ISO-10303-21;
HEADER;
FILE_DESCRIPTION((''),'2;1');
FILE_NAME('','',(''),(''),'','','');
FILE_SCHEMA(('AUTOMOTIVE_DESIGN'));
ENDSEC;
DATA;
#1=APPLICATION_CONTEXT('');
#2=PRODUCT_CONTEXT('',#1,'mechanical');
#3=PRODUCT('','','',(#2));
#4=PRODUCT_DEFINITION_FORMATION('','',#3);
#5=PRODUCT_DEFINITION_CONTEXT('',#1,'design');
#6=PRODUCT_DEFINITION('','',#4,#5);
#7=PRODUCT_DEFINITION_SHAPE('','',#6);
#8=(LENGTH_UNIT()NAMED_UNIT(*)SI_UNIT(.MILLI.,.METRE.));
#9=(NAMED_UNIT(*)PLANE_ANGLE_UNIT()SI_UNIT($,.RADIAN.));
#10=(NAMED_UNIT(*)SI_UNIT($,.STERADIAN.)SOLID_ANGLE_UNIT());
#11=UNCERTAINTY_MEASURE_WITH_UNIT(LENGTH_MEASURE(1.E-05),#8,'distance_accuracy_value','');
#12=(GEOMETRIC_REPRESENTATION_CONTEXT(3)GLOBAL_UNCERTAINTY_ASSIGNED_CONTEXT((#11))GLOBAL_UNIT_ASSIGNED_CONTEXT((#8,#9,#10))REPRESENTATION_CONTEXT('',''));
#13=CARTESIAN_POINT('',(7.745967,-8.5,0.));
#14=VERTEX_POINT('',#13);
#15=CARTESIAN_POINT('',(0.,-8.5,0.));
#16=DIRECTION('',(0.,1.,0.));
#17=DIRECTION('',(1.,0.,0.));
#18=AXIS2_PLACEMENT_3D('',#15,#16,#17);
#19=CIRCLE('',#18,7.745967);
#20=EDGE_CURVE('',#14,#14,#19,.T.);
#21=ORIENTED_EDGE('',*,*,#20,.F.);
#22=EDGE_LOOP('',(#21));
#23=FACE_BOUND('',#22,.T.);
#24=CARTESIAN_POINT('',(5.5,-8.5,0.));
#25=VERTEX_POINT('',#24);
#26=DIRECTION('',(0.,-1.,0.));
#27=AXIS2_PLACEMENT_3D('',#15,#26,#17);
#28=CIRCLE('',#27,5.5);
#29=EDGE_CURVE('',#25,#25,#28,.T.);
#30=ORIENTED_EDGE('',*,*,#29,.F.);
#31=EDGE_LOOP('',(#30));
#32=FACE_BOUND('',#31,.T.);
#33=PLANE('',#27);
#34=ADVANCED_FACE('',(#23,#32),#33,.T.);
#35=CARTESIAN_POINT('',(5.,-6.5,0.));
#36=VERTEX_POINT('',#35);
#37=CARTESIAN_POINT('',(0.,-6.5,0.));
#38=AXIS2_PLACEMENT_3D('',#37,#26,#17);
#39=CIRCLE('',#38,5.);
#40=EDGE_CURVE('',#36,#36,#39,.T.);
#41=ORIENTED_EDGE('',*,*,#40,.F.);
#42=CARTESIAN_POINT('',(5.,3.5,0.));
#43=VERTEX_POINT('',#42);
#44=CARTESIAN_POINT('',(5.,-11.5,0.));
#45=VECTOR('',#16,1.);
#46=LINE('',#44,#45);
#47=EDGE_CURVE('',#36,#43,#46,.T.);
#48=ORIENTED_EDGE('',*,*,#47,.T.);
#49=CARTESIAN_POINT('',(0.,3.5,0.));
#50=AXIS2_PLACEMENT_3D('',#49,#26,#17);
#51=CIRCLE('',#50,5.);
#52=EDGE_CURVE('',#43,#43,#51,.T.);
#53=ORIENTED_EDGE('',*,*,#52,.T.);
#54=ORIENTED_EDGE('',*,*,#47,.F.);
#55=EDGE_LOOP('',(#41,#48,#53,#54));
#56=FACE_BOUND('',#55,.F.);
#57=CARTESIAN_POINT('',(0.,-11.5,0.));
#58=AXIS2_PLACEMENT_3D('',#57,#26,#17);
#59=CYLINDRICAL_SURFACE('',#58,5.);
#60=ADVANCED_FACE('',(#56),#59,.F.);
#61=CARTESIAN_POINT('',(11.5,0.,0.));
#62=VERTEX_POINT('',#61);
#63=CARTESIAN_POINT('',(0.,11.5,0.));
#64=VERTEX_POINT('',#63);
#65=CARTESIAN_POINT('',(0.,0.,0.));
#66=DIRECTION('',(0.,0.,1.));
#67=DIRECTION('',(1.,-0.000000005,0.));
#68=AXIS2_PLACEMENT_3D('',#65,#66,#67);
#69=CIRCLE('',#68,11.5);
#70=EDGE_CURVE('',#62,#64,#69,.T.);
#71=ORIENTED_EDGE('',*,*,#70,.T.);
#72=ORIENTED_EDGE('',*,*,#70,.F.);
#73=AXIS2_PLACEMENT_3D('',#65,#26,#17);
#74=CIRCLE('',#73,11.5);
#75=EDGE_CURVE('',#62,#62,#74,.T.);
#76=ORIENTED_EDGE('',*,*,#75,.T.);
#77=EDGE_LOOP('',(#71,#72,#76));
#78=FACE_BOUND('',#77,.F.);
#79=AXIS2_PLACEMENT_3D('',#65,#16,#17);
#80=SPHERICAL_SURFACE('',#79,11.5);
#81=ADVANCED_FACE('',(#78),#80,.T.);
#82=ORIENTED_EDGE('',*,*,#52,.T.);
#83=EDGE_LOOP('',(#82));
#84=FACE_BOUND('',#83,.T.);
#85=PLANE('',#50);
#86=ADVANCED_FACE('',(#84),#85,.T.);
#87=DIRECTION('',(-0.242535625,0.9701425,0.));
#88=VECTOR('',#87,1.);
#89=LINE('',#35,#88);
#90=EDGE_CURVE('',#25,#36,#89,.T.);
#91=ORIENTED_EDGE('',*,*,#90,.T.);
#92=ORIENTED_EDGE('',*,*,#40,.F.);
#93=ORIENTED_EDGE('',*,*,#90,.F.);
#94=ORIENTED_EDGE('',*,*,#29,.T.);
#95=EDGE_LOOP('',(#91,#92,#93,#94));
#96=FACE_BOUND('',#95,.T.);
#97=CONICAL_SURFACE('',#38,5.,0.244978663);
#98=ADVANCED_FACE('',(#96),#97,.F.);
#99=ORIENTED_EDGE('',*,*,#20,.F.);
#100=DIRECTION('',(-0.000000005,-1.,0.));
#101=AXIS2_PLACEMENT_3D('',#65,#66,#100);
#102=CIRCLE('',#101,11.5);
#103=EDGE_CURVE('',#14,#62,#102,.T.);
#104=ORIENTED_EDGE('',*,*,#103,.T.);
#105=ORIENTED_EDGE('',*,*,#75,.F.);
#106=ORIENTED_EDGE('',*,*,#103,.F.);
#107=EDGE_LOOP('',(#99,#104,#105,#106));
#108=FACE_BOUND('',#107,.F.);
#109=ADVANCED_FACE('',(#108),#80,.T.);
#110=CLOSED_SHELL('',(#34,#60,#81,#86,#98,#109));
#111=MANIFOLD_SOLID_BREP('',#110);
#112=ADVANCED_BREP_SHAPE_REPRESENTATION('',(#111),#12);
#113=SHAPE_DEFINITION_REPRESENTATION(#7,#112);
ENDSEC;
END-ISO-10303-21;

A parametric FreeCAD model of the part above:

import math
import FreeCAD as App
import Part
import Sketcher


def edges_at(feature, points):
    """Names of the edges that pass closest to the given points."""
    edges = feature.Shape.Edges
    near = lambda p: min(range(len(edges)), key=lambda i: edges[i].distToShape(Part.Vertex(*p))[0])
    return sorted({f"Edge{near(p) + 1}" for p in points})

doc = App.newDocument("Part")
body = doc.addObject("PartDesign::Body", "Body")

# Sketch on XY plane
sketch1 = body.newObject("Sketcher::SketchObject", "Sketch")
sketch1.AttachmentSupport = (doc.getObject("XY_Plane"), [""])
sketch1.MapMode = "FlatFace"
sketch1.addGeometry([
    Part.ArcOfCircle(Part.Circle(App.Vector(0, 0, 0), App.Vector(0, 0, 1), 11), math.radians(-90), math.radians(0)),
    Part.ArcOfCircle(Part.Circle(App.Vector(0, 0, 0), App.Vector(0, 0, 1), 11), math.radians(0), math.radians(90)),
    Part.LineSegment(App.Vector(0, 12, 0), App.Vector(0, -12, 0)),
], False)
sketch1.addConstraint([
    Sketcher.Constraint("Tangent", 0, 2, 1, 1),
    Sketcher.Constraint("Coincident", 1, 2, 2, 1),
    Sketcher.Constraint("Coincident", 2, 2, 0, 1),
    Sketcher.Constraint("Vertical", 2),
    Sketcher.Constraint("Coincident", 0, 3, -1, 1),
    Sketcher.Constraint("Equal", 0, 1),
    Sketcher.Constraint("PointOnObject", 0, 2, -1),
    Sketcher.Constraint("PointOnObject", 1, 2, -2),
    Sketcher.Constraint("Radius", 0, 11.5),
])
revolution = body.newObject("PartDesign::Revolution", "Revolution")
revolution.Profile = sketch1
revolution.ReferenceAxis = (sketch1, ["V_Axis"])
revolution.Angle = 360

# Sketch on XZ plane
sketch2 = body.newObject("Sketcher::SketchObject", "Sketch001")
sketch2.AttachmentSupport = (doc.getObject("XZ_Plane"), [""])
sketch2.MapMode = "FlatFace"
sketch2.AttachmentOffset = App.Placement(App.Vector(0, 0, 11.5), App.Rotation())
sketch2.addGeometry(Part.Circle(App.Vector(0, 0, 0), App.Vector(0, 0, 1), 5), False)
sketch2.addConstraint([
    Sketcher.Constraint("Coincident", 0, 3, -1, 1),
    Sketcher.Constraint("Diameter", 0, 10.0),
])
pocket1 = body.newObject("PartDesign::Pocket", "Pocket")
pocket1.Profile = sketch2
pocket1.Length = 15

# Sketch on XZ plane
sketch3 = body.newObject("Sketcher::SketchObject", "Sketch002")
sketch3.AttachmentSupport = (doc.getObject("XZ_Plane"), [""])
sketch3.MapMode = "FlatFace"
sketch3.AttachmentOffset = App.Placement(App.Vector(0, 0, 11.5), App.Rotation())
sketch3.addGeometry(Part.Circle(App.Vector(0, 0, 0), App.Vector(0, 0, 1), 8), False)
sketch3.addConstraint([
    Sketcher.Constraint("Coincident", 0, 3, -1, 1),
    Sketcher.Constraint("Diameter", 0, 16.611476),
])
pocket2 = body.newObject("PartDesign::Pocket", "Pocket001")
pocket2.Profile = sketch3
pocket2.Length = 3
doc.recompute()

chamfer = body.newObject("PartDesign::Chamfer", "Chamfer")
chamfer.Base = (pocket2, edges_at(pocket2, [(-5, -8.5, 0)]))
chamfer.ChamferType = "Two distances"
chamfer.Size = 0.5
chamfer.Size2 = 2

doc.recompute()
